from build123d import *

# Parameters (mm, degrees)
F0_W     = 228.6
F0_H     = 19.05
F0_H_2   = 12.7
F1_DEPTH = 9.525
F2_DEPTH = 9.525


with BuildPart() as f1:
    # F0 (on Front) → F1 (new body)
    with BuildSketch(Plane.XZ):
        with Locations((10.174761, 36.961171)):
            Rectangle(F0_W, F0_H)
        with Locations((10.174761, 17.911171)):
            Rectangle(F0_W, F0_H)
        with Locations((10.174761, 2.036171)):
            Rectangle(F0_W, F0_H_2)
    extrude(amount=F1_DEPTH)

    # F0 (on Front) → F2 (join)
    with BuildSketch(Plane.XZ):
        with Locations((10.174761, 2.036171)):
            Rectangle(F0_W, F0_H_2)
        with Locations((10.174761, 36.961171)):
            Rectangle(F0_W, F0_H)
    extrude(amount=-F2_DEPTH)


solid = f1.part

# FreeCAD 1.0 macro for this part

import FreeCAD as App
import Part
import Sketcher

V = App.Vector
Q = App.Units.Quantity

doc = App.newDocument("Part")
params = doc.addObject("Spreadsheet::Sheet", "Params")
for row, (alias, value) in enumerate([
    ("sketch1_width", "9 in"),
    ("sketch1_height", "2 in"),
    ("pad1_length", "0.375 in"),
    ("sketch2_width", "9 in"),
    ("sketch2_height", "0.5 in"),
    ("sketch2_height2", "0.75 in"),
    ("pad2_length", "0.375 in"),
], start=1):
    params.set(f"A{row}", alias)
    params.set(f"B{row}", "=" + value)
    params.setAlias(f"B{row}", alias)

body = doc.addObject("PartDesign::Body", "Body")

sketch1 = body.newObject("Sketcher::SketchObject", "Sketch")
sketch1.AttachmentSupport = (doc.getObject("XZ_Plane"), [""])
sketch1.MapMode = "FlatFace"
sketch1.addGeometry(Part.LineSegment(V(-104, 46, 0), V(-104, -4, 0)), False)
sketch1.addGeometry(Part.LineSegment(V(-104, -4, 0), V(124, -4, 0)), False)
sketch1.addGeometry(Part.LineSegment(V(124, -4, 0), V(124, 46, 0)), False)
sketch1.addGeometry(Part.LineSegment(V(124, 46, 0), V(-104, 46, 0)), False)
sketch1.addConstraint(Sketcher.Constraint("Coincident", 0, 2, 1, 1))
sketch1.addConstraint(Sketcher.Constraint("Coincident", 1, 2, 2, 1))
sketch1.addConstraint(Sketcher.Constraint("Coincident", 2, 2, 3, 1))
sketch1.addConstraint(Sketcher.Constraint("Coincident", 3, 2, 0, 1))
sketch1.addConstraint(Sketcher.Constraint("Vertical", 0))
sketch1.addConstraint(Sketcher.Constraint("Horizontal", 1))
sketch1.addConstraint(Sketcher.Constraint("Vertical", 2))
sketch1.addConstraint(Sketcher.Constraint("Horizontal", 3))
sketch1.addConstraint(Sketcher.Constraint("DistanceX", 1, 1, 1, 2, Q("9 in")))
sketch1.addConstraint(Sketcher.Constraint("DistanceY", 0, 2, 0, 1, Q("2 in")))
sketch1.addConstraint(Sketcher.Constraint("DistanceX", 0, 2, -1, 1, 104.125239))
sketch1.addConstraint(Sketcher.Constraint("DistanceY", 0, 2, -1, 1, 4.313829))
sketch1.setExpression("Constraints[8]", "Params.sketch1_width")
sketch1.setExpression("Constraints[9]", "Params.sketch1_height")
pad1 = body.newObject("PartDesign::Pad", "Pad")
pad1.Profile = sketch1
pad1.setExpression("Length", "Params.pad1_length")

sketch2 = body.newObject("Sketcher::SketchObject", "Sketch001")
sketch2.AttachmentSupport = (doc.getObject("XZ_Plane"), [""])
sketch2.MapMode = "FlatFace"
sketch2.addGeometry(Part.LineSegment(V(-104, 8, 0), V(-104, -4, 0)), False)
sketch2.addGeometry(Part.LineSegment(V(-104, -4, 0), V(124, -4, 0)), False)
sketch2.addGeometry(Part.LineSegment(V(124, -4, 0), V(124, 8, 0)), False)
sketch2.addGeometry(Part.LineSegment(V(124, 8, 0), V(-104, 8, 0)), False)
sketch2.addGeometry(Part.LineSegment(V(-104, 46, 0), V(-104, 27, 0)), False)
sketch2.addGeometry(Part.LineSegment(V(-104, 27, 0), V(124, 27, 0)), False)
sketch2.addGeometry(Part.LineSegment(V(124, 27, 0), V(124, 46, 0)), False)
sketch2.addGeometry(Part.LineSegment(V(124, 46, 0), V(-104, 46, 0)), False)
sketch2.addConstraint(Sketcher.Constraint("Coincident", 0, 2, 1, 1))
sketch2.addConstraint(Sketcher.Constraint("Coincident", 1, 2, 2, 1))
sketch2.addConstraint(Sketcher.Constraint("Coincident", 2, 2, 3, 1))
sketch2.addConstraint(Sketcher.Constraint("Coincident", 3, 2, 0, 1))
sketch2.addConstraint(Sketcher.Constraint("Coincident", 4, 2, 5, 1))
sketch2.addConstraint(Sketcher.Constraint("Coincident", 5, 2, 6, 1))
sketch2.addConstraint(Sketcher.Constraint("Coincident", 6, 2, 7, 1))
sketch2.addConstraint(Sketcher.Constraint("Coincident", 7, 2, 4, 1))
sketch2.addConstraint(Sketcher.Constraint("Vertical", 0))
sketch2.addConstraint(Sketcher.Constraint("Horizontal", 1))
sketch2.addConstraint(Sketcher.Constraint("Vertical", 2))
sketch2.addConstraint(Sketcher.Constraint("Horizontal", 3))
sketch2.addConstraint(Sketcher.Constraint("Vertical", 4))
sketch2.addConstraint(Sketcher.Constraint("Horizontal", 5))
sketch2.addConstraint(Sketcher.Constraint("Vertical", 6))
sketch2.addConstraint(Sketcher.Constraint("Horizontal", 7))
sketch2.addConstraint(Sketcher.Constraint("Vertical", 3, 2, 4, 2))
sketch2.addConstraint(Sketcher.Constraint("Vertical", 2, 2, 5, 2))
sketch2.addConstraint(Sketcher.Constraint("DistanceX", 1, 1, 1, 2, Q("9 in")))
sketch2.addConstraint(Sketcher.Constraint("DistanceY", 0, 2, 0, 1, Q("0.5 in")))
sketch2.addConstraint(Sketcher.Constraint("DistanceY", 1, 2, 6, 2, Q("2 in")))
sketch2.addConstraint(Sketcher.Constraint("DistanceY", 4, 2, 4, 1, Q("0.75 in")))
sketch2.addConstraint(Sketcher.Constraint("DistanceX", 0, 2, -1, 1, 104.125239))
sketch2.addConstraint(Sketcher.Constraint("DistanceY", 0, 2, -1, 1, 4.313829))
sketch2.setExpression("Constraints[18]", "Params.sketch2_width")
sketch2.setExpression("Constraints[19]", "Params.sketch2_height")
sketch2.setExpression("Constraints[21]", "Params.sketch2_height2")
pad2 = body.newObject("PartDesign::Pad", "Pad001")
pad2.Profile = sketch2
pad2.setExpression("Length", "Params.pad2_length")
pad2.Reversed = True

doc.recompute()
